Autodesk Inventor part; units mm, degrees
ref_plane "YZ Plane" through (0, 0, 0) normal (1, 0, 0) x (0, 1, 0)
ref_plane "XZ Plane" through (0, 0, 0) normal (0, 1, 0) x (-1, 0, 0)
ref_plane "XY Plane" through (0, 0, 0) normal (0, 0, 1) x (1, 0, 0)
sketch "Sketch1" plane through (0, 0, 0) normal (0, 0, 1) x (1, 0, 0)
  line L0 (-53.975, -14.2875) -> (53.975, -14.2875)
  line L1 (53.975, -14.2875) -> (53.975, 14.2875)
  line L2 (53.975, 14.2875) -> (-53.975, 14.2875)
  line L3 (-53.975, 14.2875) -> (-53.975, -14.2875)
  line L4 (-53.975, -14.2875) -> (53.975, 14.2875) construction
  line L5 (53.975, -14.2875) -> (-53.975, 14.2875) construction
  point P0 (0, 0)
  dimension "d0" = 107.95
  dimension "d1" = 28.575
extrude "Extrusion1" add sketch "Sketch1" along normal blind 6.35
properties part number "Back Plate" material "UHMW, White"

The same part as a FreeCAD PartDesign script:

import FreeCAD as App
import Part
import Sketcher
Q = App.Units.Quantity

doc = App.newDocument("Part")
body = doc.addObject("PartDesign::Body", "Body")

# Sketch on XY plane
sketch1 = body.newObject("Sketcher::SketchObject", "Sketch")
sketch1.AttachmentSupport = (doc.getObject("XY_Plane"), [""])
sketch1.MapMode = "FlatFace"
sketch1.addGeometry([
    Part.LineSegment(App.Vector(-54, 14, 0), App.Vector(-54, -14, 0)),
    Part.LineSegment(App.Vector(-54, -14, 0), App.Vector(54, -14, 0)),
    Part.LineSegment(App.Vector(54, -14, 0), App.Vector(54, 14, 0)),
    Part.LineSegment(App.Vector(54, 14, 0), App.Vector(-54, 14, 0)),
], False)
sketch1.addConstraint([
    Sketcher.Constraint("Coincident", 0, 2, 1, 1),
    Sketcher.Constraint("Coincident", 1, 2, 2, 1),
    Sketcher.Constraint("Coincident", 2, 2, 3, 1),
    Sketcher.Constraint("Coincident", 3, 2, 0, 1),
    Sketcher.Constraint("Vertical", 0),
    Sketcher.Constraint("Horizontal", 1),
    Sketcher.Constraint("Vertical", 2),
    Sketcher.Constraint("Horizontal", 3),
    Sketcher.Constraint("Symmetric", 0, 2, 2, 2, -1, 1),
    Sketcher.Constraint("DistanceX", 1, 1, 1, 2, Q("4.25 in")),
    Sketcher.Constraint("DistanceY", 0, 2, 0, 1, Q("1.125 in")),
])
pad1 = body.newObject("PartDesign::Pad", "Pad")
pad1.Profile = sketch1
pad1.Length = Q("0.25 in")

doc.recompute()
